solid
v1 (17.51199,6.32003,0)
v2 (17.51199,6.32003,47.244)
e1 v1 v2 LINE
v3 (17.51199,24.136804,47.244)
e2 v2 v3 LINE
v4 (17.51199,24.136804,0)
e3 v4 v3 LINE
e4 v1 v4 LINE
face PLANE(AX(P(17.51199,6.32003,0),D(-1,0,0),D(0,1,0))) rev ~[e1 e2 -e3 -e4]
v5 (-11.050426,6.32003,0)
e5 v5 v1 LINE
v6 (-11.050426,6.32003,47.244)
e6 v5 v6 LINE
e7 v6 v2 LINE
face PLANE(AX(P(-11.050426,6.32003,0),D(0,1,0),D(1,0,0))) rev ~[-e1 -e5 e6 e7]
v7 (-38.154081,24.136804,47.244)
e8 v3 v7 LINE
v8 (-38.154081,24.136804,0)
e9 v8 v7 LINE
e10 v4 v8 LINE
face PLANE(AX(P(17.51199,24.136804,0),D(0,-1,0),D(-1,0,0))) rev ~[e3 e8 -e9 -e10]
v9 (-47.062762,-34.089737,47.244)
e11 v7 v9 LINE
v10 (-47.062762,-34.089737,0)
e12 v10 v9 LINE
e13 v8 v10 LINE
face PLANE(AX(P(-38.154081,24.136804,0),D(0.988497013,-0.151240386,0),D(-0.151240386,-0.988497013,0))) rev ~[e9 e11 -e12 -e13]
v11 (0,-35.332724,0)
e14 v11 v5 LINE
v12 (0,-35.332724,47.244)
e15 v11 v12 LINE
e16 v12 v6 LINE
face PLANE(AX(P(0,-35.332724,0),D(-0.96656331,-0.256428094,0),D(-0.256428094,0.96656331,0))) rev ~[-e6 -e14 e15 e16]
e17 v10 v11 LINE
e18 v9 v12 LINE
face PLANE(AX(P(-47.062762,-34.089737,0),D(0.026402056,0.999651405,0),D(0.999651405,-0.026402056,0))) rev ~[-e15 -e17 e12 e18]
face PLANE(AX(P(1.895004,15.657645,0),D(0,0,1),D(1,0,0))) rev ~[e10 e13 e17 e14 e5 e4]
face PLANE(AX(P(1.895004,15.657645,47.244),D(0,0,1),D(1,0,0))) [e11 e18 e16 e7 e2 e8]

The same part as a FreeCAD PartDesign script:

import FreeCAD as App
import Part
import Sketcher

V = App.Vector
Q = App.Units.Quantity


def add_polygon(sketch, points):
    """Adds a closed chain of lines whose ends are joined by coincident constraints."""
    first, n = sketch.GeometryCount, len(points)
    for a, b in zip(points, points[1:] + points[:1]):
        sketch.addGeometry(Part.LineSegment(App.Vector(*a, 0), App.Vector(*b, 0)), False)
    for i in range(n):
        sketch.addConstraint(Sketcher.Constraint("Coincident", first + i, 2, first + (i + 1) % n, 1))

doc = App.newDocument("Part")
params = doc.addObject("Spreadsheet::Sheet", "Params")
for row, (alias, value) in enumerate([
    ("pad1_length", "1.86 in"),
], start=1):
    params.set(f"A{row}", alias)
    params.set(f"B{row}", "=" + value)
    params.setAlias(f"B{row}", alias)

body = doc.addObject("PartDesign::Body", "Body")

sketch1 = doc.addObject("Sketcher::SketchObject", "Sketch")
body.addObject(sketch1)
sketch1.AttachmentSupport = (doc.XY_Plane, [""])
sketch1.MapMode = "FlatFace"
add_polygon(sketch1, [(17.51199, 24.136804), (-38.154081, 24.136804), (-47.062762, -34.089737), (0, -35.332724), (-11.050426, 6.32003), (17.51199, 6.32003)])
sketch1.addConstraint([
    Sketcher.Constraint("Horizontal", 0),
    Sketcher.Constraint("Horizontal", 4),
    Sketcher.Constraint("Vertical", 5),
    Sketcher.Constraint("PointOnObject", 2, 2, -2),
    Sketcher.Constraint("DistanceX", 0, 2, 0, 1, Q("55.666071 mm")),
    Sketcher.Constraint("DistanceX", 4, 1, 4, 2, Q("28.562416 mm")),
    Sketcher.Constraint("DistanceY", 5, 1, 5, 2, Q("17.816774 mm")),
    Sketcher.Constraint("DistanceX", 0, 2, -1, 1, Q("38.154081 mm")),
    Sketcher.Constraint("DistanceY", -1, 1, 3, 2, Q("6.32003 mm")),
    Sketcher.Constraint("DistanceX", 1, 2, 0, 2, Q("8.908681 mm")),
    Sketcher.Constraint("DistanceY", 1, 2, 0, 2, Q("58.226541 mm")),
    Sketcher.Constraint("Distance", 2, Q("47.079174 mm")),
])
pad1 = doc.addObject("PartDesign::Pad", "Pad")
body.addObject(pad1)
pad1.Profile = sketch1
pad1.setExpression("Length", "Params.pad1_length")

doc.recompute()
